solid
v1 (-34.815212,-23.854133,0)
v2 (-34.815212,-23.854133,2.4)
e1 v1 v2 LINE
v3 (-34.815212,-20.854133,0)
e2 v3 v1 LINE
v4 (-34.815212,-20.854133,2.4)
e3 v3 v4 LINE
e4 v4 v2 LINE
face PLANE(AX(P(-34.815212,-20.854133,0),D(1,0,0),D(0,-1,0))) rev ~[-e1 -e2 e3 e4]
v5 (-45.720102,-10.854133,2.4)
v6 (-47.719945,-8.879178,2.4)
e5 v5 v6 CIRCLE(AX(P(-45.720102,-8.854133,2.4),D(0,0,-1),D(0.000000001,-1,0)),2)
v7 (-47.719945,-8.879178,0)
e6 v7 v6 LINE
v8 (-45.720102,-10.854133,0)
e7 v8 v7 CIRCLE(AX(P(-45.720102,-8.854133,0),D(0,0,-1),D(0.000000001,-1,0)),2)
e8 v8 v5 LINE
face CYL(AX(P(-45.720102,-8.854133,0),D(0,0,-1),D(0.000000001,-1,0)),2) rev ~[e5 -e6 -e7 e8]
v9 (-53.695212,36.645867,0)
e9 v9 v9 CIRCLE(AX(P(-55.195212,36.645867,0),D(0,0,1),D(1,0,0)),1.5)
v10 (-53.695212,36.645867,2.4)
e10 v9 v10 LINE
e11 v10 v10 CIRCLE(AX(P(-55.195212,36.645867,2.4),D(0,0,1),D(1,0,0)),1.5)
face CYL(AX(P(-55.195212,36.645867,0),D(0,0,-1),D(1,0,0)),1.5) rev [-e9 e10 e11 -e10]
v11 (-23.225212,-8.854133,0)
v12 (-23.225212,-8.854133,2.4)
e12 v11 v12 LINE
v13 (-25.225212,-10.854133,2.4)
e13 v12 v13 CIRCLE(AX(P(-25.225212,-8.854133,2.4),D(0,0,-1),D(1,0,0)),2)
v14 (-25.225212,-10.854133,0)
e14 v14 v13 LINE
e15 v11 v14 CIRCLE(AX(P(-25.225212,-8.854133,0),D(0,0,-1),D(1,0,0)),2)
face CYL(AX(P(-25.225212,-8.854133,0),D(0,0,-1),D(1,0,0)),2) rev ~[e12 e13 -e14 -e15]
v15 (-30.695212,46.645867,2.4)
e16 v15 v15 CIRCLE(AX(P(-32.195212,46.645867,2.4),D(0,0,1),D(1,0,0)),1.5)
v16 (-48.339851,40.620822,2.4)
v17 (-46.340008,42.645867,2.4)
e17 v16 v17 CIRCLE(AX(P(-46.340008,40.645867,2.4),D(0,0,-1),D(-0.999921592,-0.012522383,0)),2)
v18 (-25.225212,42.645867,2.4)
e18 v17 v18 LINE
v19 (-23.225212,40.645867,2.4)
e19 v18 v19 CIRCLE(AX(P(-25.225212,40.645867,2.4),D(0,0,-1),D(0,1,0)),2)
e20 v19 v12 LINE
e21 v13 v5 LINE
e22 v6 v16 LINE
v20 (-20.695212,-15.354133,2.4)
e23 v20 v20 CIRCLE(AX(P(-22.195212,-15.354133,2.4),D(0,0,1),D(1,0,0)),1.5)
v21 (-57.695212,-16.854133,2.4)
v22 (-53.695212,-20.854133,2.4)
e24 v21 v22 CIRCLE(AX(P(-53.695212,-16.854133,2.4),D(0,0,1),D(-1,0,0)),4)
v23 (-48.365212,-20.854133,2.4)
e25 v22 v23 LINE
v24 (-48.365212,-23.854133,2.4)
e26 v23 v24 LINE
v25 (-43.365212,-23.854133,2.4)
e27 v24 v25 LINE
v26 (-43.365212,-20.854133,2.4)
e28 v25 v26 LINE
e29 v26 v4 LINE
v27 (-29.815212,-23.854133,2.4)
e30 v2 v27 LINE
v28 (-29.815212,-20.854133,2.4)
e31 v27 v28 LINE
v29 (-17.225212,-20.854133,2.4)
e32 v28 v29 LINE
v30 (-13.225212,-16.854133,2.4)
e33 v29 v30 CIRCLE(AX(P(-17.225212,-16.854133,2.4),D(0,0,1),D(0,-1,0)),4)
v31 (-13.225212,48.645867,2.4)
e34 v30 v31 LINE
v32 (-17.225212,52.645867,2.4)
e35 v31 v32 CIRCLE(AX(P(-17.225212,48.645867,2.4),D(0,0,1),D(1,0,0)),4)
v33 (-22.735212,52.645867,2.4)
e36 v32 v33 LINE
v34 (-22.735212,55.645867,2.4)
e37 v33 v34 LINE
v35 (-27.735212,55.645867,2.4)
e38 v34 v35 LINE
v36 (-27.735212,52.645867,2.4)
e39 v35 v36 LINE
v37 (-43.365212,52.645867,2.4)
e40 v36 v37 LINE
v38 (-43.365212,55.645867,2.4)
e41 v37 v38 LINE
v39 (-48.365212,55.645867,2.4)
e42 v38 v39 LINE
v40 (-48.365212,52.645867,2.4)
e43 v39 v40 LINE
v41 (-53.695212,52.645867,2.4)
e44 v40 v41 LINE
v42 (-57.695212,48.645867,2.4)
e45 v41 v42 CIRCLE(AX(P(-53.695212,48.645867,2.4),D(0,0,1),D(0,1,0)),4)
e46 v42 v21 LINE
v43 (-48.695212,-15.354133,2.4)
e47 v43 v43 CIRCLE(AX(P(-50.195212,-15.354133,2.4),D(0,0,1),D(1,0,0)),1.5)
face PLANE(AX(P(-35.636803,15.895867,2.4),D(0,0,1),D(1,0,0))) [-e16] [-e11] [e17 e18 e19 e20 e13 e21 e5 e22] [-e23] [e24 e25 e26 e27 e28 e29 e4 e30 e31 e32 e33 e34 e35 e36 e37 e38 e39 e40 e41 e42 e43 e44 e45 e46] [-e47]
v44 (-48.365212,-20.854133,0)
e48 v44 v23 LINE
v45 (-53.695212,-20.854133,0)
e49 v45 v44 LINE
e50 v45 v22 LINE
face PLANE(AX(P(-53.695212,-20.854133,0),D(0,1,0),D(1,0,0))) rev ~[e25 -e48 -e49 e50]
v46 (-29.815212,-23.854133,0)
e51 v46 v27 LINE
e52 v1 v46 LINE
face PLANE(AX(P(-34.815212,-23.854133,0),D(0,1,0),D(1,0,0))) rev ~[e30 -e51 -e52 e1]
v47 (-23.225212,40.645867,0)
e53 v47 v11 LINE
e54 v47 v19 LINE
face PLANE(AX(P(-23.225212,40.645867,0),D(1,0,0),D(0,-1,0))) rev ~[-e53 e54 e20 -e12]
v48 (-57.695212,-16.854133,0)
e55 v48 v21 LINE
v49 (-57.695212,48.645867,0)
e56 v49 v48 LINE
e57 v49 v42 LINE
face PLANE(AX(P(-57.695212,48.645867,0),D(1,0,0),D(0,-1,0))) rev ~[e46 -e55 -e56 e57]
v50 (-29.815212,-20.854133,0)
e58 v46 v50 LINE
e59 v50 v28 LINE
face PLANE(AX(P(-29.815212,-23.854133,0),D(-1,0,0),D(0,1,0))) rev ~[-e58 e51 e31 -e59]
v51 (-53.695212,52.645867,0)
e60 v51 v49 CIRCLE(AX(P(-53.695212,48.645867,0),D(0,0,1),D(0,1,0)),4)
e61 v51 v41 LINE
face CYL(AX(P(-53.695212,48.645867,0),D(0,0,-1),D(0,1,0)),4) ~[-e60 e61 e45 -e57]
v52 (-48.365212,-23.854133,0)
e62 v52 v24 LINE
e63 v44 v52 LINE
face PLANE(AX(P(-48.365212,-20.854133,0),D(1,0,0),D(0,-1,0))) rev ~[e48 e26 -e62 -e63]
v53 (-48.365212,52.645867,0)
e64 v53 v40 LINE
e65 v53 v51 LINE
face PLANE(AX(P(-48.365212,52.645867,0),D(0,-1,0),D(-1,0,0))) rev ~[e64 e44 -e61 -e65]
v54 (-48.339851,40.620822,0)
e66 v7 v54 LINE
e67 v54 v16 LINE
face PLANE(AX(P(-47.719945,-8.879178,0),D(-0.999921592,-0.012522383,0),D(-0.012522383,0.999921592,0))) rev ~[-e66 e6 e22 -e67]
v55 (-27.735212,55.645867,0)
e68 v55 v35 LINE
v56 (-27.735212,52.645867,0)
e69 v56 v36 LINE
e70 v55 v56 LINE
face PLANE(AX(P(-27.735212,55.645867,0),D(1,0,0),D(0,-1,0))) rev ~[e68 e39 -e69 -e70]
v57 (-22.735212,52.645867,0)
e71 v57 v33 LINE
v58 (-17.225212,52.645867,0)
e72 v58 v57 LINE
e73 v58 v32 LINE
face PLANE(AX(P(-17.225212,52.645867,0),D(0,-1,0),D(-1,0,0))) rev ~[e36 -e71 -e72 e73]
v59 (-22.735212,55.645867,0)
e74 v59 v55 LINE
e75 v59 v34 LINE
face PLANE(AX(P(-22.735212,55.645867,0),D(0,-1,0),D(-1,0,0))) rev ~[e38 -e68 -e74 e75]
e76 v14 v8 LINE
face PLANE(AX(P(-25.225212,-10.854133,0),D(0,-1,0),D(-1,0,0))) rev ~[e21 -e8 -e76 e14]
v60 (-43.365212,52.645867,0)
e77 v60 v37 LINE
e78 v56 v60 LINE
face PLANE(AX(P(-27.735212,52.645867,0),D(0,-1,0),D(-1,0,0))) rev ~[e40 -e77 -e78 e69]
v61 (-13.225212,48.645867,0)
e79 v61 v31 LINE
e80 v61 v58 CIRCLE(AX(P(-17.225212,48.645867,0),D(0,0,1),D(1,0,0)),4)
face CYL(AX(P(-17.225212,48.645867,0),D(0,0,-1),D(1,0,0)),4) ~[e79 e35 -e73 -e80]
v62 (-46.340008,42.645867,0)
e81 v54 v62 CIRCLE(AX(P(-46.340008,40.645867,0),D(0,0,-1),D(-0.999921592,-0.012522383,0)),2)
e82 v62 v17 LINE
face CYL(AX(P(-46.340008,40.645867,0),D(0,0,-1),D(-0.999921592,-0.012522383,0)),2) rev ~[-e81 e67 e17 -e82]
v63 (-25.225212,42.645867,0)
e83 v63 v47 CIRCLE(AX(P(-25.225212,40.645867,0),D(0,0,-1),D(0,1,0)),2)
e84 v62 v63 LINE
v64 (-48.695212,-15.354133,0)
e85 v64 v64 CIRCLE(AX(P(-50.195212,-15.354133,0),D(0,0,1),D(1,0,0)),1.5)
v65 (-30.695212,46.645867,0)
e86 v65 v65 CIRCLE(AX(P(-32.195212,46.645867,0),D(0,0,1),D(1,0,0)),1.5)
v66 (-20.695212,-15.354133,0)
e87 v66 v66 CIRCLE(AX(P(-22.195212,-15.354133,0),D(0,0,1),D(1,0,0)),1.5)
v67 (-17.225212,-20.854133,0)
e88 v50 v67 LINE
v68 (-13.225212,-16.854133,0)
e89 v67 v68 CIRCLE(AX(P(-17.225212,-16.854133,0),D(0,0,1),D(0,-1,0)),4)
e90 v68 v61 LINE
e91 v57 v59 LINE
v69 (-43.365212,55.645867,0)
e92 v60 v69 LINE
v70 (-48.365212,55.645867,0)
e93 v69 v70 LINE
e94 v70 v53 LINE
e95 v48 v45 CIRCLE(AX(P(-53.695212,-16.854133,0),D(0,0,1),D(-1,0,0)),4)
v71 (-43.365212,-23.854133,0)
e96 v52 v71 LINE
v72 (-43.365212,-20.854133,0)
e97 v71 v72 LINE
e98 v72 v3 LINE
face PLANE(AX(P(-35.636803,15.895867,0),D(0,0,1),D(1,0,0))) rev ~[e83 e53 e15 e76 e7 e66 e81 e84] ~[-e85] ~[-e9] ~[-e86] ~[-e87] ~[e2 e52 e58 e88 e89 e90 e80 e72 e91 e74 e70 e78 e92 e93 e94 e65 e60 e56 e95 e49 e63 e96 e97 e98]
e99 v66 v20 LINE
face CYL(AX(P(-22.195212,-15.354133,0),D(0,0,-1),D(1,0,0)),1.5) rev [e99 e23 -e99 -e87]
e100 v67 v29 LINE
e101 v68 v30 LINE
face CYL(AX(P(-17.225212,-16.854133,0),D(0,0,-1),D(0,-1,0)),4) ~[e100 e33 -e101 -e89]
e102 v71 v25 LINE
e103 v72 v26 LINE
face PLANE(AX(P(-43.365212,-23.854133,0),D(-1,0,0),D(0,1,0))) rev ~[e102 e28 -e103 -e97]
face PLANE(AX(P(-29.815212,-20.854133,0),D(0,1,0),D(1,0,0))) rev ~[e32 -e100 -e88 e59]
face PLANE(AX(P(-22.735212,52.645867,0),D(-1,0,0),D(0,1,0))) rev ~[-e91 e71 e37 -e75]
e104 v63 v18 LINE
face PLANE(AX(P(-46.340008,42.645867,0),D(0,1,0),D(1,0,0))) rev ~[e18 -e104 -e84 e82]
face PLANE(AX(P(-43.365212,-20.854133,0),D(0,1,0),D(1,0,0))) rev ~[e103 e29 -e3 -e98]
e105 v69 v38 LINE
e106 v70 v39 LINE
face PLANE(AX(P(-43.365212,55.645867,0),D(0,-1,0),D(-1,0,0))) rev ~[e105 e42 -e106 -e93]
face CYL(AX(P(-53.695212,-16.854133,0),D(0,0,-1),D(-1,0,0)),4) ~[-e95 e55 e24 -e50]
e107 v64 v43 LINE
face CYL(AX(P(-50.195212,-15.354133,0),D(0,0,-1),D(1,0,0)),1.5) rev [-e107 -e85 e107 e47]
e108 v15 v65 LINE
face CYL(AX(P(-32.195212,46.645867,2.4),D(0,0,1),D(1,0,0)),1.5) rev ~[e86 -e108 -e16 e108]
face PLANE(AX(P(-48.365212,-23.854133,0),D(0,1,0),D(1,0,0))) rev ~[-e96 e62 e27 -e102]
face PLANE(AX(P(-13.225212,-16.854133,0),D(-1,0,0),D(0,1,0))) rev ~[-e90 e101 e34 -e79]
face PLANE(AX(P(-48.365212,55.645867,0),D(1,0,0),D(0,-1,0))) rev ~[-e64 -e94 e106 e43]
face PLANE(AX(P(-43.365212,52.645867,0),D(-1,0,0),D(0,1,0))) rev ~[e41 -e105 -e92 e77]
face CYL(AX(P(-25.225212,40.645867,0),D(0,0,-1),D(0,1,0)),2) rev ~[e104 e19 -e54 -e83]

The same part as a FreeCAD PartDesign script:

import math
import FreeCAD as App
import Part
import Sketcher

doc = App.newDocument("Part")
body = doc.addObject("PartDesign::Body", "Body")

# Sketch on XY plane
sketch1 = body.newObject("Sketcher::SketchObject", "Sketch")
sketch1.AttachmentSupport = (doc.getObject("XY_Plane"), [""])
sketch1.MapMode = "FlatFace"
sketch1.addGeometry([
    Part.LineSegment(App.Vector(-27.735212, 52.645867, 0), App.Vector(-43.365212, 52.645867, 0)),  # 0
    Part.LineSegment(App.Vector(-43.365212, 52.645867, 0), App.Vector(-43.365212, 55.645867, 0)),  # 1
    Part.LineSegment(App.Vector(-43.365212, 55.645867, 0), App.Vector(-48.365212, 55.645867, 0)),  # 2
    Part.LineSegment(App.Vector(-48.365212, 55.645867, 0), App.Vector(-48.365212, 52.645867, 0)),  # 3
    Part.LineSegment(App.Vector(-48.365212, 52.645867, 0), App.Vector(-53.695212, 52.645867, 0)),  # 4
    Part.ArcOfCircle(Part.Circle(App.Vector(-53.695212, 48.645867, 0), App.Vector(0, 0, 1), 4), math.radians(90), math.radians(180)),  # 5
    Part.LineSegment(App.Vector(-57.695212, 48.645867, 0), App.Vector(-57.695212, -16.854133, 0)),  # 6
    Part.ArcOfCircle(Part.Circle(App.Vector(-53.695212, -16.854133, 0), App.Vector(0, 0, 1), 4), math.radians(-180), math.radians(-90)),  # 7
    Part.LineSegment(App.Vector(-53.695212, -20.854133, 0), App.Vector(-48.365212, -20.854133, 0)),  # 8
    Part.LineSegment(App.Vector(-48.365212, -20.854133, 0), App.Vector(-48.365212, -23.854133, 0)),  # 9
    Part.LineSegment(App.Vector(-48.365212, -23.854133, 0), App.Vector(-43.365212, -23.854133, 0)),  # 10
    Part.LineSegment(App.Vector(-43.365212, -23.854133, 0), App.Vector(-43.365212, -20.854133, 0)),  # 11
    Part.LineSegment(App.Vector(-43.365212, -20.854133, 0), App.Vector(-34.815212, -20.854133, 0)),  # 12
    Part.LineSegment(App.Vector(-34.815212, -20.854133, 0), App.Vector(-34.815212, -23.854133, 0)),  # 13
    Part.LineSegment(App.Vector(-34.815212, -23.854133, 0), App.Vector(-29.815212, -23.854133, 0)),  # 14
    Part.LineSegment(App.Vector(-29.815212, -23.854133, 0), App.Vector(-29.815212, -20.854133, 0)),  # 15
    Part.LineSegment(App.Vector(-29.815212, -20.854133, 0), App.Vector(-17.225212, -20.854133, 0)),  # 16
    Part.ArcOfCircle(Part.Circle(App.Vector(-17.225212, -16.854133, 0), App.Vector(0, 0, 1), 4), math.radians(-90), math.radians(0)),  # 17
    Part.LineSegment(App.Vector(-13.225212, -16.854133, 0), App.Vector(-13.225212, 48.645867, 0)),  # 18
    Part.ArcOfCircle(Part.Circle(App.Vector(-17.225212, 48.645867, 0), App.Vector(0, 0, 1), 4), math.radians(0), math.radians(90)),  # 19
    Part.LineSegment(App.Vector(-17.225212, 52.645867, 0), App.Vector(-22.735212, 52.645867, 0)),  # 20
    Part.LineSegment(App.Vector(-22.735212, 52.645867, 0), App.Vector(-22.735212, 55.645867, 0)),  # 21
    Part.LineSegment(App.Vector(-22.735212, 55.645867, 0), App.Vector(-27.735212, 55.645867, 0)),  # 22
    Part.LineSegment(App.Vector(-27.735212, 55.645867, 0), App.Vector(-27.735212, 52.645867, 0)),  # 23
    Part.Circle(App.Vector(-50.195212, -15.354133, 0), App.Vector(0, 0, 1), 1.5),  # 24
    Part.Circle(App.Vector(-22.195212, -15.354133, 0), App.Vector(0, 0, 1), 1.5),  # 25
    Part.Circle(App.Vector(-55.195212, 36.645867, 0), App.Vector(0, 0, 1), 1.5),  # 26
    Part.LineSegment(App.Vector(-46.340008, 42.645867, 0), App.Vector(-25.225212, 42.645867, 0)),  # 27
    Part.ArcOfCircle(Part.Circle(App.Vector(-25.225212, 40.645867, 0), App.Vector(0, 0, 1), 2), math.radians(0), math.radians(90)),  # 28
    Part.LineSegment(App.Vector(-23.225212, 40.645867, 0), App.Vector(-23.225212, -8.854133, 0)),  # 29
    Part.ArcOfCircle(Part.Circle(App.Vector(-25.225212, -8.854133, 0), App.Vector(0, 0, 1), 2), math.radians(-90), math.radians(0)),  # 30
    Part.LineSegment(App.Vector(-25.225212, -10.854133, 0), App.Vector(-45.720102, -10.854133, 0)),  # 31
    Part.ArcOfCircle(Part.Circle(App.Vector(-45.720102, -8.854133, 0), App.Vector(0, 0, 1), 2), math.radians(-179.282502), math.radians(-90)),  # 32
    Part.LineSegment(App.Vector(-47.719945, -8.879178, 0), App.Vector(-48.339851, 40.620822, 0)),  # 33
    Part.ArcOfCircle(Part.Circle(App.Vector(-46.340008, 40.645867, 0), App.Vector(0, 0, 1), 2), math.radians(90), math.radians(180.717498)),  # 34
], False)
sketch1.addConstraint([
    Sketcher.Constraint("Coincident", 0, 2, 1, 1),
    Sketcher.Constraint("Coincident", 1, 2, 2, 1),
    Sketcher.Constraint("Coincident", 2, 2, 3, 1),
    Sketcher.Constraint("Coincident", 3, 2, 4, 1),
    Sketcher.Constraint("Coincident", 4, 2, 5, 1),
    Sketcher.Constraint("Coincident", 5, 2, 6, 1),
    Sketcher.Constraint("Coincident", 6, 2, 7, 1),
    Sketcher.Constraint("Coincident", 7, 2, 8, 1),
    Sketcher.Constraint("Coincident", 8, 2, 9, 1),
    Sketcher.Constraint("Coincident", 9, 2, 10, 1),
    Sketcher.Constraint("Coincident", 10, 2, 11, 1),
    Sketcher.Constraint("Coincident", 11, 2, 12, 1),
    Sketcher.Constraint("Coincident", 12, 2, 13, 1),
    Sketcher.Constraint("Coincident", 13, 2, 14, 1),
    Sketcher.Constraint("Coincident", 14, 2, 15, 1),
    Sketcher.Constraint("Coincident", 15, 2, 16, 1),
    Sketcher.Constraint("Coincident", 16, 2, 17, 1),
    Sketcher.Constraint("Coincident", 17, 2, 18, 1),
    Sketcher.Constraint("Coincident", 18, 2, 19, 1),
    Sketcher.Constraint("Coincident", 19, 2, 20, 1),
    Sketcher.Constraint("Coincident", 20, 2, 21, 1),
    Sketcher.Constraint("Coincident", 21, 2, 22, 1),
    Sketcher.Constraint("Coincident", 22, 2, 23, 1),
    Sketcher.Constraint("Coincident", 23, 2, 0, 1),
    Sketcher.Constraint("Coincident", 27, 2, 28, 2),
    Sketcher.Constraint("Coincident", 28, 1, 29, 1),
    Sketcher.Constraint("Coincident", 29, 2, 30, 2),
    Sketcher.Constraint("Coincident", 30, 1, 31, 1),
    Sketcher.Constraint("Coincident", 31, 2, 32, 2),
    Sketcher.Constraint("Coincident", 32, 1, 33, 1),
    Sketcher.Constraint("Coincident", 33, 2, 34, 2),
    Sketcher.Constraint("Coincident", 34, 1, 27, 1),
    Sketcher.Constraint("Horizontal", 0),
    Sketcher.Constraint("Vertical", 1),
    Sketcher.Constraint("Horizontal", 2),
    Sketcher.Constraint("Vertical", 3),
    Sketcher.Constraint("Horizontal", 4),
    Sketcher.Constraint("Vertical", 6),
    Sketcher.Constraint("Horizontal", 8),
    Sketcher.Constraint("Vertical", 9),
    Sketcher.Constraint("Horizontal", 10),
    Sketcher.Constraint("Vertical", 11),
    Sketcher.Constraint("Horizontal", 12),
    Sketcher.Constraint("Vertical", 13),
    Sketcher.Constraint("Horizontal", 14),
    Sketcher.Constraint("Vertical", 15),
    Sketcher.Constraint("Horizontal", 16),
    Sketcher.Constraint("Vertical", 18),
    Sketcher.Constraint("Horizontal", 20),
    Sketcher.Constraint("Vertical", 21),
    Sketcher.Constraint("Horizontal", 22),
    Sketcher.Constraint("Vertical", 23),
    Sketcher.Constraint("Horizontal", 27),
    Sketcher.Constraint("Vertical", 29),
    Sketcher.Constraint("Horizontal", 31),
    Sketcher.Constraint("Diameter", 24, 3.0),
    Sketcher.Constraint("Diameter", 25, 3.0),
    Sketcher.Constraint("Diameter", 26, 3.0),
    Sketcher.Constraint("Radius", 5, 4.0),
    Sketcher.Constraint("Radius", 7, 4.0),
    Sketcher.Constraint("Radius", 17, 4.0),
    Sketcher.Constraint("Radius", 19, 4.0),
    Sketcher.Constraint("Radius", 28, 2.0),
    Sketcher.Constraint("Radius", 30, 2.0),
    Sketcher.Constraint("Radius", 32, 2.0),
    Sketcher.Constraint("Radius", 34, 2.0),
    Sketcher.Constraint("DistanceX", 2, 2, 2, 1, 5.0),
    Sketcher.Constraint("DistanceX", 10, 1, 10, 2, 5.0),
    Sketcher.Constraint("DistanceX", 14, 1, 14, 2, 5.0),
    Sketcher.Constraint("DistanceX", 22, 2, 22, 1, 5.0),
    Sketcher.Constraint("DistanceY", 1, 1, 1, 2, 3.0),
    Sketcher.Constraint("DistanceY", 3, 2, 3, 1, 3.0),
    Sketcher.Constraint("DistanceY", 9, 2, 9, 1, 3.0),
    Sketcher.Constraint("DistanceY", 11, 1, 11, 2, 3.0),
    Sketcher.Constraint("DistanceY", 13, 2, 13, 1, 3.0),
    Sketcher.Constraint("DistanceY", 15, 1, 15, 2, 3.0),
    Sketcher.Constraint("DistanceY", 21, 1, 21, 2, 3.0),
    Sketcher.Constraint("DistanceY", 23, 2, 23, 1, 3.0),
    Sketcher.Constraint("DistanceY", 6, 2, 6, 1, 65.5),
    Sketcher.Constraint("DistanceY", 18, 1, 18, 2, 65.5),
    Sketcher.Constraint("DistanceY", 29, 2, 29, 1, 49.5),
    Sketcher.Constraint("DistanceY", 24, 3, 5, 3, 64.0),
    Sketcher.Constraint("DistanceX", 24, 3, 25, 3, 28.0),
    Sketcher.Constraint("DistanceY", 25, 3, 19, 3, 64.0),
    Sketcher.Constraint("DistanceY", 26, 3, 5, 3, 12.0),
    Sketcher.Constraint("DistanceX", 26, 3, 24, 3, 5.0),
    Sketcher.Constraint("DistanceX", 28, 3, 19, 3, 8.0),
    Sketcher.Constraint("DistanceY", 28, 3, 19, 3, 8.0),
    Sketcher.Constraint("DistanceY", 17, 3, 30, 3, 8.0),
    Sketcher.Constraint("DistanceX", 5, 2, 4, 2, 4.0),
    Sketcher.Constraint("DistanceY", 5, 2, 4, 2, 4.0),
    Sketcher.Constraint("DistanceY", 6, 2, 32, 3, 8.0),
    Sketcher.Constraint("DistanceX", 6, 2, 7, 2, 4.0),
    Sketcher.Constraint("DistanceX", 30, 3, 16, 2, 8.0),
    Sketcher.Constraint("DistanceY", 16, 2, 17, 2, 4.0),
    Sketcher.Constraint("DistanceX", 19, 2, 18, 2, 4.0),
    Sketcher.Constraint("DistanceX", 27, 2, 19, 3, 8.0),
    Sketcher.Constraint("DistanceY", 28, 1, 27, 2, 2.0),
    Sketcher.Constraint("DistanceX", 30, 1, 29, 2, 2.0),
    Sketcher.Constraint("DistanceX", 0, 2, 0, 1, 15.63),
    Sketcher.Constraint("DistanceX", 4, 2, 4, 1, 5.33),
    Sketcher.Constraint("DistanceX", 8, 1, 8, 2, 5.33),
    Sketcher.Constraint("DistanceX", 12, 1, 12, 2, 8.55),
    Sketcher.Constraint("DistanceX", 16, 1, 16, 2, 12.59),
    Sketcher.Constraint("DistanceX", 7, 3, 24, 3, 3.5),
    Sketcher.Constraint("DistanceX", 31, 2, 31, 1, 20.49489),
    Sketcher.Constraint("DistanceX", 32, 3, -1, 1, 45.720102),
    Sketcher.Constraint("DistanceX", 31, 2, -1, 1, 45.720102),
    Sketcher.Constraint("Distance", 33, 49.503882),
    Sketcher.Constraint("DistanceX", 27, 1, 27, 2, 21.114796),
    Sketcher.Constraint("DistanceX", 34, 3, -1, 1, 46.340008),
    Sketcher.Constraint("DistanceY", 32, 1, -1, 1, 8.879178),
    Sketcher.Constraint("DistanceY", -1, 1, 5, 3, 48.645867),
])
pad1 = body.newObject("PartDesign::Pad", "Pad")
pad1.Profile = sketch1
pad1.Length = 2.4

# Sketch on XY plane
sketch2 = body.newObject("Sketcher::SketchObject", "Sketch001")
sketch2.AttachmentSupport = (doc.getObject("XY_Plane"), [""])
sketch2.MapMode = "FlatFace"
sketch2.AttachmentOffset = App.Placement(App.Vector(0, 0, 2.4), App.Rotation())
sketch2.addGeometry(Part.Circle(App.Vector(-32.195212, 46.645867, 0), App.Vector(0, 0, 1), 1.5), False)
sketch2.addConstraint([
    Sketcher.Constraint("Diameter", 0, 3.0),
    Sketcher.Constraint("DistanceX", 0, 3, -1, 1, 32.195212),
    Sketcher.Constraint("DistanceY", -1, 1, 0, 3, 46.645867),
])
pocket1 = body.newObject("PartDesign::Pocket", "Pocket")
pocket1.Profile = sketch2
pocket1.Type = "UpToFirst"

doc.recompute()
